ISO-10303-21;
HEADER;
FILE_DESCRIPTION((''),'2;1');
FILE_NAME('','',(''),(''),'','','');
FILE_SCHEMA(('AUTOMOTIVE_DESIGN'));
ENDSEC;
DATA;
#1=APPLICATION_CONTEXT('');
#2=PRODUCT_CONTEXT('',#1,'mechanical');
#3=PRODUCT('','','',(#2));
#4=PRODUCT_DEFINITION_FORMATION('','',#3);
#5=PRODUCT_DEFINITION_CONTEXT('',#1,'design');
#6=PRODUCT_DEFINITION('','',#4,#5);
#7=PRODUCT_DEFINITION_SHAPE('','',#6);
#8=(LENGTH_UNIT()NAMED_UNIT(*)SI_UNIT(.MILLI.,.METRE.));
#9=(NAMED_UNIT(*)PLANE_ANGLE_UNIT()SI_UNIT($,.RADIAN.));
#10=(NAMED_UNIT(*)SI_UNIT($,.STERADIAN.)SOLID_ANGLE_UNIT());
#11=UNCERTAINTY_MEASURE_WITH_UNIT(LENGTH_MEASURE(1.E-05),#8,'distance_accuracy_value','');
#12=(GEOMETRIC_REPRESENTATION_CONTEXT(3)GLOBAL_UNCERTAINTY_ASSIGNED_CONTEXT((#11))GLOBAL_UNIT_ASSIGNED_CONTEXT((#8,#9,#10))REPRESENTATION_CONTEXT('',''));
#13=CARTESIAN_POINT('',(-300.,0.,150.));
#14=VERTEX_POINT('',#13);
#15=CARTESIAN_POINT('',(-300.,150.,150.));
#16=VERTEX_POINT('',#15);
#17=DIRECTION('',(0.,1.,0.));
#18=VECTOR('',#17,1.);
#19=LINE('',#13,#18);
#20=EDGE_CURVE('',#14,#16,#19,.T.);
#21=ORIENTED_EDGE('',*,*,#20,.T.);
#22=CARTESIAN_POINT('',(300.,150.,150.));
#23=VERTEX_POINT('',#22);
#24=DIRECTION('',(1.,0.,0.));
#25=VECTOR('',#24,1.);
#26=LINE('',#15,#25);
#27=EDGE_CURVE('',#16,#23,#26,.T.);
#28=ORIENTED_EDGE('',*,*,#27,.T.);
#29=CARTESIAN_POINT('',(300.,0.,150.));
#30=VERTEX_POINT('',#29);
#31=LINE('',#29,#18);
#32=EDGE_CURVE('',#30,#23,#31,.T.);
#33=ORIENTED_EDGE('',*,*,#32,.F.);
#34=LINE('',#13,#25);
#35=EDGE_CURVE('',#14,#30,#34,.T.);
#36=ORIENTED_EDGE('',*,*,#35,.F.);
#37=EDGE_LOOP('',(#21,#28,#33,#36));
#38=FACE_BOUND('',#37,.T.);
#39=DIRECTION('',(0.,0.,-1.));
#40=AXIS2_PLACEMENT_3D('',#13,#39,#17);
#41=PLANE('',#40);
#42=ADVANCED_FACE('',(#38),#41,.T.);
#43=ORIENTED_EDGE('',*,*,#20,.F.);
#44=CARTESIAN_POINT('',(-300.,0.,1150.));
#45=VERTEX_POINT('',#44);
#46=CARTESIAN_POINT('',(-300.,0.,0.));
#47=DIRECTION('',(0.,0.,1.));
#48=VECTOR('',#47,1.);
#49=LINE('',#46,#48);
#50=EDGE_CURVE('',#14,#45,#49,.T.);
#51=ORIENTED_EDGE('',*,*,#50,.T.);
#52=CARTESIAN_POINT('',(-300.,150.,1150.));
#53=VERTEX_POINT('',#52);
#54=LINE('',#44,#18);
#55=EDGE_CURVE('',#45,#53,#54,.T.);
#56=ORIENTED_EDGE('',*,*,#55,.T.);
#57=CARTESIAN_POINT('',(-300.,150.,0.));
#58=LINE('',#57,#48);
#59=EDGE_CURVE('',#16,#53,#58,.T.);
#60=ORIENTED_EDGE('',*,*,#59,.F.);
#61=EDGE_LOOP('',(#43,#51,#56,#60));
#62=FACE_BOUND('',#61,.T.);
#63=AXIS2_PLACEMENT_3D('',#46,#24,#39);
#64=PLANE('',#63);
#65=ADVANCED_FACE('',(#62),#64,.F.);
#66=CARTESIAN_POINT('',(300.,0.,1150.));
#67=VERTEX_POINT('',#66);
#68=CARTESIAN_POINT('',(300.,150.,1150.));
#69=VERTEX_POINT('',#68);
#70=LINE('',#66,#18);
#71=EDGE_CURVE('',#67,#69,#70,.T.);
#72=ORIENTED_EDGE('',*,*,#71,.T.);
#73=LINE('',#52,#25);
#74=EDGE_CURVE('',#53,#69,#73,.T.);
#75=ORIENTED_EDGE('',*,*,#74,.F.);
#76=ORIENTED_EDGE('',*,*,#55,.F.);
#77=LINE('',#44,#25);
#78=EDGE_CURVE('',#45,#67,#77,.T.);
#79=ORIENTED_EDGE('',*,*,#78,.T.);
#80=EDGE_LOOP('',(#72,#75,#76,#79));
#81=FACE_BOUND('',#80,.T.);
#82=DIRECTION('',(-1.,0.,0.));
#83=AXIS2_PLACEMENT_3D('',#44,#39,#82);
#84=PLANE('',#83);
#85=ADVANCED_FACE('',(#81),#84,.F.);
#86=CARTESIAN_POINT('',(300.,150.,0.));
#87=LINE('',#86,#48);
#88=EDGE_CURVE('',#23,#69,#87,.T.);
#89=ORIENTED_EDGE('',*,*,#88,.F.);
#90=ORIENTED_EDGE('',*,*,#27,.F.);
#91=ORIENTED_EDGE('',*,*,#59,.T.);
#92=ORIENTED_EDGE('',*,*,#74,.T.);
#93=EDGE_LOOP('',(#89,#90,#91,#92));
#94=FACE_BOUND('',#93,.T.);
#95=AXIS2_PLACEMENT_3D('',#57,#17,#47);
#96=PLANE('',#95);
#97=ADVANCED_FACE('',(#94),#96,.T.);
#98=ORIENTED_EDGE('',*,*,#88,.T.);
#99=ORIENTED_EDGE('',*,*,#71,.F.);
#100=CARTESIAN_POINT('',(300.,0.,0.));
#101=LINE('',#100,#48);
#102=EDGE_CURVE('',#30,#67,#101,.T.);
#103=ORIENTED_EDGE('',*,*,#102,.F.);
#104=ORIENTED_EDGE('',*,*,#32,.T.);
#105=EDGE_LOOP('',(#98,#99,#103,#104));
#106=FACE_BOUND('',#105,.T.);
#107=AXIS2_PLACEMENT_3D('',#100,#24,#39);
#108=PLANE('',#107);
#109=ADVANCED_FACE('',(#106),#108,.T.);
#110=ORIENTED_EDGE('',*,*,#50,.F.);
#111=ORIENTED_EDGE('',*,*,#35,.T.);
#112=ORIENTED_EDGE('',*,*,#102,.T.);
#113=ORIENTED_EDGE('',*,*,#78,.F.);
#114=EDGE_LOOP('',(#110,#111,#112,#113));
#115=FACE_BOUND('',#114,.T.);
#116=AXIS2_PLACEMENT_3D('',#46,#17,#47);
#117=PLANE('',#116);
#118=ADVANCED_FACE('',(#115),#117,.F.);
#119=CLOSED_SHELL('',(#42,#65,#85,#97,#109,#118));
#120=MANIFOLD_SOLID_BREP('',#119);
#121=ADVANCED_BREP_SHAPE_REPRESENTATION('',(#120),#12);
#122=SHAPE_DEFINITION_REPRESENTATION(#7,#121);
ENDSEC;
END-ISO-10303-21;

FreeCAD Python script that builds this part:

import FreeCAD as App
import Part
import Sketcher

doc = App.newDocument("Part")
body = doc.addObject("PartDesign::Body", "Body")

# Sketch on YZ plane
sketch1 = body.newObject("Sketcher::SketchObject", "Sketch")
sketch1.AttachmentSupport = (doc.getObject("YZ_Plane"), [""])
sketch1.MapMode = "FlatFace"
sketch1.addGeometry([
    Part.LineSegment(App.Vector(0, 1150, 0), App.Vector(0, 150, 0)),
    Part.LineSegment(App.Vector(0, 150, 0), App.Vector(150, 150, 0)),
    Part.LineSegment(App.Vector(150, 150, 0), App.Vector(150, 1150, 0)),
    Part.LineSegment(App.Vector(150, 1150, 0), App.Vector(0, 1150, 0)),
], False)
sketch1.addConstraint([
    Sketcher.Constraint("Coincident", 0, 2, 1, 1),
    Sketcher.Constraint("Coincident", 1, 2, 2, 1),
    Sketcher.Constraint("Coincident", 2, 2, 3, 1),
    Sketcher.Constraint("Coincident", 3, 2, 0, 1),
    Sketcher.Constraint("Vertical", 0),
    Sketcher.Constraint("Horizontal", 1),
    Sketcher.Constraint("Vertical", 2),
    Sketcher.Constraint("Horizontal", 3),
    Sketcher.Constraint("PointOnObject", 0, 2, -2),
    Sketcher.Constraint("DistanceX", 1, 1, 1, 2, 150.0),
    Sketcher.Constraint("DistanceY", 0, 2, 0, 1, 1000.0),
    Sketcher.Constraint("DistanceY", -1, 1, 0, 2, 150.0),
])
pad1 = body.newObject("PartDesign::Pad", "Pad")
pad1.Profile = sketch1
pad1.Type = "TwoLengths"
pad1.Length = 300
pad1.Length2 = 300

doc.recompute()
